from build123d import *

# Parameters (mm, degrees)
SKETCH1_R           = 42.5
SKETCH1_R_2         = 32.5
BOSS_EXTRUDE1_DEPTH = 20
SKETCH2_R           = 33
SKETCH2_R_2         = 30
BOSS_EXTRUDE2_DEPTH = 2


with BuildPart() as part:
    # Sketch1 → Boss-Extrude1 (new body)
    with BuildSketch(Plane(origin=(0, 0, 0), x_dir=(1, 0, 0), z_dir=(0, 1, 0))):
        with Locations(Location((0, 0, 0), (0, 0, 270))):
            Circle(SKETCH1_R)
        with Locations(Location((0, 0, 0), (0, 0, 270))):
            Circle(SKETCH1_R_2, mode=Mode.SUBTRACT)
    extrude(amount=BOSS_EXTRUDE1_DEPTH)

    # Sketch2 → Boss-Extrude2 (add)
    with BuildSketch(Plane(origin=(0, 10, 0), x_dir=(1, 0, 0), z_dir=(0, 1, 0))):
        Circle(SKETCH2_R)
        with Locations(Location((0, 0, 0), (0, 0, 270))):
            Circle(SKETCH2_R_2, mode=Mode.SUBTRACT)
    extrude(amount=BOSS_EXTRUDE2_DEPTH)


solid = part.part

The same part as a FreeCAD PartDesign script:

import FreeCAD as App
import Part
import Sketcher

doc = App.newDocument("Part")
body = doc.addObject("PartDesign::Body", "Body")

# Sketch on XZ plane
sketch1 = doc.addObject("Sketcher::SketchObject", "Sketch")
body.addObject(sketch1)
sketch1.AttachmentSupport = (doc.XZ_Plane, [""])
sketch1.MapMode = "FlatFace"
sketch1.addGeometry([
    Part.Circle(App.Vector(0, 0, 0), App.Vector(0, 0, 1), 42),
    Part.Circle(App.Vector(0, 0, 0), App.Vector(0, 0, 1), 32),
], False)
sketch1.addConstraint([
    Sketcher.Constraint("Coincident", 0, 3, -1, 1),
    Sketcher.Constraint("Coincident", 1, 3, -1, 1),
    Sketcher.Constraint("Diameter", 0, 85.0),
    Sketcher.Constraint("Diameter", 1, 65.0),
])
pad1 = doc.addObject("PartDesign::Pad", "Pad")
body.addObject(pad1)
pad1.Profile = sketch1
pad1.Length = 20
pad1.Reversed = True

# Sketch on XZ plane
sketch2 = doc.addObject("Sketcher::SketchObject", "Sketch001")
body.addObject(sketch2)
sketch2.AttachmentSupport = (doc.XZ_Plane, [""])
sketch2.MapMode = "FlatFace"
sketch2.AttachmentOffset = App.Placement(App.Vector(0, 0, -10), App.Rotation())
sketch2.addGeometry([
    Part.Circle(App.Vector(0, 0, 0), App.Vector(0, 0, 1), 33),
    Part.Circle(App.Vector(0, 0, 0), App.Vector(0, 0, 1), 30),
], False)
sketch2.addConstraint([
    Sketcher.Constraint("Coincident", 0, 3, -1, 1),
    Sketcher.Constraint("Coincident", 1, 3, -1, 1),
    Sketcher.Constraint("Diameter", 0, 66.0),
    Sketcher.Constraint("Diameter", 1, 60.0),
])
pad2 = doc.addObject("PartDesign::Pad", "Pad001")
body.addObject(pad2)
pad2.Profile = sketch2
pad2.Length = 2
pad2.Reversed = True

doc.recompute()
